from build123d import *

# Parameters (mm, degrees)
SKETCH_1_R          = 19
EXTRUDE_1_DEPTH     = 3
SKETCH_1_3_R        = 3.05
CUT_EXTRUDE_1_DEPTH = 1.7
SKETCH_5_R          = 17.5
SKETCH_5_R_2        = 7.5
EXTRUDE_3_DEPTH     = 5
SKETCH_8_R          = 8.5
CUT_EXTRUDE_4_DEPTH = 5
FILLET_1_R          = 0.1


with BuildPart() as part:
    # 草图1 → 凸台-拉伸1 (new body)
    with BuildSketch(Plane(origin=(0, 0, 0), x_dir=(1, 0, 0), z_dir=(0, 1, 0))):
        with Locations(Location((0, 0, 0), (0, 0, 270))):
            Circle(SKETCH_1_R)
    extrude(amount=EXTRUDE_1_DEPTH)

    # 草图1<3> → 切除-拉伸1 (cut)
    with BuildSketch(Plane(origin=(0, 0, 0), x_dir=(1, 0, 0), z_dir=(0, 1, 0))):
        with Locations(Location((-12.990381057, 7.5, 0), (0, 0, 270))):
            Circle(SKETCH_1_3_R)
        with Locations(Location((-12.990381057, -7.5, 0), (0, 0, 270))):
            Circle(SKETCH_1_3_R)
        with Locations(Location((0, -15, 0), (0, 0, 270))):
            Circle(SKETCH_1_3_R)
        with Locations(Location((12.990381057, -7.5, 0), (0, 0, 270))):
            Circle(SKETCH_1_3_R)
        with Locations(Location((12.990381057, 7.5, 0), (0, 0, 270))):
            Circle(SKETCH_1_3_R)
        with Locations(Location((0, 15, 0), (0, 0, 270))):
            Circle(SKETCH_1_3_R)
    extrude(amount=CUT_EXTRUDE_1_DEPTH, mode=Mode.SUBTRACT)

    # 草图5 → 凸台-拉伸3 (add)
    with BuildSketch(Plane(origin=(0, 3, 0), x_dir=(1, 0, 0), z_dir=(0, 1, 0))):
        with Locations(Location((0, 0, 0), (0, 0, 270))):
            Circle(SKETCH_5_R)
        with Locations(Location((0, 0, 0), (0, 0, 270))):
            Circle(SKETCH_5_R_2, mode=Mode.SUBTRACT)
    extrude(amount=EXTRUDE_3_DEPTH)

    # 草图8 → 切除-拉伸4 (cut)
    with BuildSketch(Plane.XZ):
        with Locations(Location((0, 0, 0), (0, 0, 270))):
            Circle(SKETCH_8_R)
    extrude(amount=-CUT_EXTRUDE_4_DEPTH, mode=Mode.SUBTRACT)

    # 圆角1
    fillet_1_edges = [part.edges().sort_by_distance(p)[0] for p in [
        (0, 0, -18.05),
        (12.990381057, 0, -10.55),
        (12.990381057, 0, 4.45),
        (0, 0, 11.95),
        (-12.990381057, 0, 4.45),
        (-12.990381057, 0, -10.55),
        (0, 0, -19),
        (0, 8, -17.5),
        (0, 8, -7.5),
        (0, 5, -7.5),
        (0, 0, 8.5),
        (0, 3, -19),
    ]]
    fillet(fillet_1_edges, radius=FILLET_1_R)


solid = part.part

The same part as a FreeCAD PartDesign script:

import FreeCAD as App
import Part
import Sketcher
from FreeCAD import Vector
Q = App.Units.Quantity


def edges_at(feature, points):
    """Names of the edges that pass closest to the given points."""
    edges = feature.Shape.Edges
    near = lambda p: min(range(len(edges)), key=lambda i: edges[i].distToShape(Part.Vertex(*p))[0])
    return sorted({f"Edge{near(p) + 1}" for p in points})

doc = App.newDocument("Part")
body = doc.addObject("PartDesign::Body", "Body")

sketch1 = doc.addObject("Sketcher::SketchObject", "Sketch")
body.addObject(sketch1)
sketch1.AttachmentSupport = (doc.XZ_Plane, [""])
sketch1.MapMode = "FlatFace"
sketch1.addGeometry(Part.Circle(Vector(0, 0, 0), Vector(0, 0, 1), 19), False)
sketch1.addConstraint(Sketcher.Constraint("Coincident", 0, 3, -1, 1))
sketch1.addConstraint(Sketcher.Constraint("Diameter", 0, Q("38 mm")))
pad1 = doc.addObject("PartDesign::Pad", "Pad")
body.addObject(pad1)
pad1.Profile = sketch1
pad1.Length = 3
pad1.Reversed = True

sketch2 = doc.addObject("Sketcher::SketchObject", "Sketch001")
body.addObject(sketch2)
sketch2.AttachmentSupport = (doc.XZ_Plane, [""])
sketch2.MapMode = "FlatFace"
sketch2.addGeometry(Part.Circle(Vector(-12.990381, -7.5, 0), Vector(0, 0, 1), 3.05), False)
sketch2.addGeometry(Part.Circle(Vector(-12.990381, 7.5, 0), Vector(0, 0, 1), 3.05), False)
sketch2.addGeometry(Part.Circle(Vector(0, 15, 0), Vector(0, 0, 1), 3.05), False)
sketch2.addGeometry(Part.Circle(Vector(12.990381, 7.5, 0), Vector(0, 0, 1), 3.05), False)
sketch2.addGeometry(Part.Circle(Vector(12.990381, -7.5, 0), Vector(0, 0, 1), 3.05), False)
sketch2.addGeometry(Part.Circle(Vector(0, -15, 0), Vector(0, 0, 1), 3.05), False)
sketch2.addConstraint(Sketcher.Constraint("Equal", 0, 1))
sketch2.addConstraint(Sketcher.Constraint("Equal", 1, 2))
sketch2.addConstraint(Sketcher.Constraint("Equal", 2, 3))
sketch2.addConstraint(Sketcher.Constraint("Equal", 3, 4))
sketch2.addConstraint(Sketcher.Constraint("Equal", 4, 5))
sketch2.addConstraint(Sketcher.Constraint("Symmetric", 0, 3, 3, 3, -1, 1))
sketch2.addConstraint(Sketcher.Constraint("Symmetric", 1, 3, 4, 3, -1, 1))
sketch2.addConstraint(Sketcher.Constraint("Symmetric", 2, 3, 5, 3, -1, 1))
sketch2.addConstraint(Sketcher.Constraint("Symmetric", 1, 3, 3, 3, -2))
sketch2.addConstraint(Sketcher.Constraint("PointOnObject", 2, 3, -2))
sketch2.addConstraint(Sketcher.Constraint("Diameter", 0, Q("6.1 mm")))
sketch2.addConstraint(Sketcher.Constraint("DistanceY", -1, 1, 2, 3, Q("15 mm")))
sketch2.addConstraint(Sketcher.Constraint("DistanceY", 0, 3, 1, 3, Q("15 mm")))
sketch2.addConstraint(Sketcher.Constraint("DistanceX", 0, 3, -1, 1, Q("12.990381 mm")))
pocket1 = doc.addObject("PartDesign::Pocket", "Pocket")
body.addObject(pocket1)
pocket1.Profile = sketch2
pocket1.Length = 1.7

sketch3 = doc.addObject("Sketcher::SketchObject", "Sketch002")
body.addObject(sketch3)
sketch3.AttachmentSupport = (doc.XZ_Plane, [""])
sketch3.MapMode = "FlatFace"
sketch3.AttachmentOffset = App.Placement(Vector(0, 0, -3), App.Rotation())
sketch3.addGeometry(Part.Circle(Vector(0, 0, 0), Vector(0, 0, 1), 17.5), False)
sketch3.addGeometry(Part.Circle(Vector(0, 0, 0), Vector(0, 0, 1), 7.5), False)
sketch3.addConstraint(Sketcher.Constraint("Coincident", 0, 3, -1, 1))
sketch3.addConstraint(Sketcher.Constraint("Coincident", 1, 3, -1, 1))
sketch3.addConstraint(Sketcher.Constraint("Diameter", 0, Q("35 mm")))
sketch3.addConstraint(Sketcher.Constraint("Diameter", 1, Q("15 mm")))
pad2 = doc.addObject("PartDesign::Pad", "Pad001")
body.addObject(pad2)
pad2.Profile = sketch3
pad2.Length = 5
pad2.Reversed = True

sketch4 = doc.addObject("Sketcher::SketchObject", "Sketch003")
body.addObject(sketch4)
sketch4.AttachmentSupport = (doc.XZ_Plane, [""])
sketch4.MapMode = "FlatFace"
sketch4.addGeometry(Part.Circle(Vector(0, 0, 0), Vector(0, 0, 1), 8.5), False)
sketch4.addConstraint(Sketcher.Constraint("Coincident", 0, 3, -1, 1))
sketch4.addConstraint(Sketcher.Constraint("Diameter", 0, Q("17 mm")))
pocket2 = doc.addObject("PartDesign::Pocket", "Pocket001")
body.addObject(pocket2)
pocket2.Profile = sketch4
pocket2.Length = 5
doc.recompute()

fillet = doc.addObject("PartDesign::Fillet", "Fillet")
body.addObject(fillet)
fillet.Base = (pocket2, edges_at(pocket2, [
    (0, 0, -18.05),
    (12.99, 0, -10.55),
    (12.99, 0, 4.45),
    (0, 0, 11.95),
    (-12.99, 0, 4.45),
    (-12.99, 0, -10.55),
    (0, 0, -19),
    (0, 8, -17.5),
    (0, 8, -7.5),
    (0, 5, -7.5),
    (0, 0, 8.5),
    (0, 3, -19),
]))
fillet.Radius = 0.1

doc.recompute()
